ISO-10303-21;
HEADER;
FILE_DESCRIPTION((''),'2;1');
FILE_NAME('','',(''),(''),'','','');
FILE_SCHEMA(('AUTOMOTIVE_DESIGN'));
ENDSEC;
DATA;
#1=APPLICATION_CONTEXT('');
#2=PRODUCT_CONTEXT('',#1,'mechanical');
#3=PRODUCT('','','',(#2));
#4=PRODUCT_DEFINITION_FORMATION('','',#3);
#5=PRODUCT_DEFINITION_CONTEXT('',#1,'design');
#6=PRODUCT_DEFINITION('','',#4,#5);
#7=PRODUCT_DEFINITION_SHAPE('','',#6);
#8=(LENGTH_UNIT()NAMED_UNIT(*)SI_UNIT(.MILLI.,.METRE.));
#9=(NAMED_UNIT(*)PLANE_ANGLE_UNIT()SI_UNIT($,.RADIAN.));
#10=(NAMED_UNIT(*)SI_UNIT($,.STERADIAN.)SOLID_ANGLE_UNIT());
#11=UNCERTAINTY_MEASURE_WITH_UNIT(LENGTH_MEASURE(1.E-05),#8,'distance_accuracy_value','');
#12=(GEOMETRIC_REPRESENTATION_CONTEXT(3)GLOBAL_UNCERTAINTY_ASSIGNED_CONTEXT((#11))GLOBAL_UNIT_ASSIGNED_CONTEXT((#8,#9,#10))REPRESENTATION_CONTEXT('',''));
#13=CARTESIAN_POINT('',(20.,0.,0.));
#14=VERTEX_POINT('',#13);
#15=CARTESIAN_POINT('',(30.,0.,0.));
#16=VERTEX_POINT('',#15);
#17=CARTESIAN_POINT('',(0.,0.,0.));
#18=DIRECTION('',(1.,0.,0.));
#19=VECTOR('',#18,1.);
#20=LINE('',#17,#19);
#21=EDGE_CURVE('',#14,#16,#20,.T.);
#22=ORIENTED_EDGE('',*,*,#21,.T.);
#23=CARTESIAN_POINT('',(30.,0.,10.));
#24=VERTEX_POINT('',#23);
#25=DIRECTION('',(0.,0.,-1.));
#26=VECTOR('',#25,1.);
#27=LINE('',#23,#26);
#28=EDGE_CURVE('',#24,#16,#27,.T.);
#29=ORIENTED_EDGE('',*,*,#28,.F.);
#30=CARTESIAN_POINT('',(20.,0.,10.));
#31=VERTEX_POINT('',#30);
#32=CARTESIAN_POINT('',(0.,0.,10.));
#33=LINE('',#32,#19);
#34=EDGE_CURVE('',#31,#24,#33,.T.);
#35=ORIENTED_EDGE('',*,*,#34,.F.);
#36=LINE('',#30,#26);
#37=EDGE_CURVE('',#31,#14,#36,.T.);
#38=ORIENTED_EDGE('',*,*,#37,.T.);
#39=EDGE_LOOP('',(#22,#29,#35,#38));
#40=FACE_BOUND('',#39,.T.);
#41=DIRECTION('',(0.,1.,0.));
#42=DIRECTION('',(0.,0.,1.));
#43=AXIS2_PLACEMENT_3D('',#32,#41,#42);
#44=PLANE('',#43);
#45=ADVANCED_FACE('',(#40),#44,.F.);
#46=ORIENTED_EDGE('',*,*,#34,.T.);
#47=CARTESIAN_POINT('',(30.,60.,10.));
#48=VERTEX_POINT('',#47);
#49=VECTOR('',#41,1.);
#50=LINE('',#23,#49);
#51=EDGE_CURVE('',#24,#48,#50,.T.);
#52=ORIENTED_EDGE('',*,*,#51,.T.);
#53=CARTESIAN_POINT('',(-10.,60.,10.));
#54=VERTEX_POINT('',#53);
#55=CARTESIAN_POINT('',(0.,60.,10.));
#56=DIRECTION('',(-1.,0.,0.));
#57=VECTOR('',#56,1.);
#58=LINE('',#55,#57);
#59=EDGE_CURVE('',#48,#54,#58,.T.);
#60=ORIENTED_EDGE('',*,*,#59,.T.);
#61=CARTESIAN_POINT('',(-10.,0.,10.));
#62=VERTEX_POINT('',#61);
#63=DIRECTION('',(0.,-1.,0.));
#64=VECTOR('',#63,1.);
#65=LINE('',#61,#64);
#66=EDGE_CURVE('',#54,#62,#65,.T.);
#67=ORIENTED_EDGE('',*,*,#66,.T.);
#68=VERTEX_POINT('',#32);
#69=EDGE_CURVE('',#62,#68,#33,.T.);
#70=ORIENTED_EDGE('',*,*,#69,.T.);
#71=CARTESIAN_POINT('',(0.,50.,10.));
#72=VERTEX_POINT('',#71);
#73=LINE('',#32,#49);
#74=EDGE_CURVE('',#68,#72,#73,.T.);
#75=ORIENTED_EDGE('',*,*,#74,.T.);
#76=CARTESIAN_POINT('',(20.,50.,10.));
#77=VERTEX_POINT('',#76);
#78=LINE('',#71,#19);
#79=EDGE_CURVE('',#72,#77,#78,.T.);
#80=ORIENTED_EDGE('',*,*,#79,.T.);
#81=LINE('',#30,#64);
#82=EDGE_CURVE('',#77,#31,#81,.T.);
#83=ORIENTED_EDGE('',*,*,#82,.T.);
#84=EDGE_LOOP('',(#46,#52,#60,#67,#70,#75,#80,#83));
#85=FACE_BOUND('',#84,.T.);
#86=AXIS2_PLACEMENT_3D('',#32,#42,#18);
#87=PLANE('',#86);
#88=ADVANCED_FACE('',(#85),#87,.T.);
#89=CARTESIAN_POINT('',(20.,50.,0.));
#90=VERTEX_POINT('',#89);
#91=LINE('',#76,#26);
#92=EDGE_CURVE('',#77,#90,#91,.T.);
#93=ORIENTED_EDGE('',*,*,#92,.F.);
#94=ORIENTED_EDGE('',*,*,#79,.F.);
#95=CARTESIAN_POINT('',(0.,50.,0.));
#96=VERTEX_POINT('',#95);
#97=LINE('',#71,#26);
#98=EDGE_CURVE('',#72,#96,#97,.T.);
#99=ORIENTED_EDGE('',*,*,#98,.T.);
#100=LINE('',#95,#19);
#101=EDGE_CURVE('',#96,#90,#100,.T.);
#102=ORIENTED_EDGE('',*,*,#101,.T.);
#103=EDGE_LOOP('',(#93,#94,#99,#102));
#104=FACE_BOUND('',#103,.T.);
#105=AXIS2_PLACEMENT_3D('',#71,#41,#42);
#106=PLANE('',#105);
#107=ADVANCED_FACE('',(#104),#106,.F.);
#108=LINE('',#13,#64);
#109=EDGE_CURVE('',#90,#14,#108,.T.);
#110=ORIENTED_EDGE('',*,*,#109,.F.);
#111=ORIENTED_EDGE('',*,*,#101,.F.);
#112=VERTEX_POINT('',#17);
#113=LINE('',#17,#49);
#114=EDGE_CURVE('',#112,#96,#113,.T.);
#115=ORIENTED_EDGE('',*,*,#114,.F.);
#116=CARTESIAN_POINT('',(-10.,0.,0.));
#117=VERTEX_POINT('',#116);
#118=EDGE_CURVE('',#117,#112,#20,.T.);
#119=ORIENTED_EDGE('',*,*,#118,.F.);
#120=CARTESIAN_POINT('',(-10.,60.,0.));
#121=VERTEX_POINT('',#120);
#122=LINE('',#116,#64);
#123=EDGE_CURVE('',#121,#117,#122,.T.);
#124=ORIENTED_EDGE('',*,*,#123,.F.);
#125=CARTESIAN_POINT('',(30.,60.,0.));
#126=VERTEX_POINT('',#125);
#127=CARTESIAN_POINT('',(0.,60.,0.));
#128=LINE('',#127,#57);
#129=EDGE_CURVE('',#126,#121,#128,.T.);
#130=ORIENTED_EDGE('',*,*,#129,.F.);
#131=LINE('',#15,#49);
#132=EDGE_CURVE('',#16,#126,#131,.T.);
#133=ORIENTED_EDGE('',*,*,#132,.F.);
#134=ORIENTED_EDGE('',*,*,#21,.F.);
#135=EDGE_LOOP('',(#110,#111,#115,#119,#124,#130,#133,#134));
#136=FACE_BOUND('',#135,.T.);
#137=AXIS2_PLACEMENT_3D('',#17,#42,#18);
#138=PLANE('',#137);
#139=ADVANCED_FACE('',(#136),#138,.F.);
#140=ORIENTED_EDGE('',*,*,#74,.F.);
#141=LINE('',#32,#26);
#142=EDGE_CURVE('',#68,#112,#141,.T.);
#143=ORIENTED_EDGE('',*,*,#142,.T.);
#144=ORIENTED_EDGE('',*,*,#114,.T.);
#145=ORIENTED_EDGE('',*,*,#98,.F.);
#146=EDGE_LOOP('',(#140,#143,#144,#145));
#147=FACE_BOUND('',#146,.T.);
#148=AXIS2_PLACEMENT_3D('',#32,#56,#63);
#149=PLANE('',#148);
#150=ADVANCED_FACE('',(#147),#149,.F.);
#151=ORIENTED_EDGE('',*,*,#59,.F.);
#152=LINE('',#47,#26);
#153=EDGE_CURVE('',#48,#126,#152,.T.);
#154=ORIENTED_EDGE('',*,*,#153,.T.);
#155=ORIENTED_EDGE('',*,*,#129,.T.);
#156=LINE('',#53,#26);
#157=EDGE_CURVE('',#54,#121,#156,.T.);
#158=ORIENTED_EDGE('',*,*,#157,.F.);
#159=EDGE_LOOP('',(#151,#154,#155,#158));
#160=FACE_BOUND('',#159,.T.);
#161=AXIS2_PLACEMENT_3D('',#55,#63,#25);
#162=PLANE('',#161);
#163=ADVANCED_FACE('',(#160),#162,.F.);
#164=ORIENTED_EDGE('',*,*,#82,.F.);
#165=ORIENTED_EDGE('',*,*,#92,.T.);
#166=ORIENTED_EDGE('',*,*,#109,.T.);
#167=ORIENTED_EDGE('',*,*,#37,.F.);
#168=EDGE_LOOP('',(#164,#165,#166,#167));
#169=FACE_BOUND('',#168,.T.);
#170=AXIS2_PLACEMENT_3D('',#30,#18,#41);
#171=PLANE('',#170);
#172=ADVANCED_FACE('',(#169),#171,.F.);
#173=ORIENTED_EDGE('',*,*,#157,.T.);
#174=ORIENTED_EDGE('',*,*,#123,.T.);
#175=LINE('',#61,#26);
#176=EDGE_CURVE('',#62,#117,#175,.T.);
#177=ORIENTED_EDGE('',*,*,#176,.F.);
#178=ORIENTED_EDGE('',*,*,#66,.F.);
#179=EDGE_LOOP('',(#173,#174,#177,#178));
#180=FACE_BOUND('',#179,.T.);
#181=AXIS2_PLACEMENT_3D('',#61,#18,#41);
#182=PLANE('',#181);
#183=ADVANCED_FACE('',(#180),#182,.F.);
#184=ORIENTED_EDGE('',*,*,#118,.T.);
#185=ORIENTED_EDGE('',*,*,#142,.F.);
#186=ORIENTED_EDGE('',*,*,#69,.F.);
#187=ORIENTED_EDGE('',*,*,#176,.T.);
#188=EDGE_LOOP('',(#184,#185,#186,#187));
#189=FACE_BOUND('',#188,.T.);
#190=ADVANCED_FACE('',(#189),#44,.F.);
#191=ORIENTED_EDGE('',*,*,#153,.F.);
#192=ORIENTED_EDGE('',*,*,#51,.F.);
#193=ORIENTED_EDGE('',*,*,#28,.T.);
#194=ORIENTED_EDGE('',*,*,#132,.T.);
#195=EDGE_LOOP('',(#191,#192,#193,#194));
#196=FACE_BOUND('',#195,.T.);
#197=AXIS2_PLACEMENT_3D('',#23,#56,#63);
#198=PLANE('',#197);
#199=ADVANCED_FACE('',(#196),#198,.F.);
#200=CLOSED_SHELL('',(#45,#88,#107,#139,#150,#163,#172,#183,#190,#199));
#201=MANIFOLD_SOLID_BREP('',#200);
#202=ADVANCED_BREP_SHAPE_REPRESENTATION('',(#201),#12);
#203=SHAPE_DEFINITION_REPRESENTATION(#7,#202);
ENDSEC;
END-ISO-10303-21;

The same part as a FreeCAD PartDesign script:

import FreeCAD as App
import Part
import Sketcher
from FreeCAD import Vector


def add_polygon(sketch, points):
    """Adds a closed chain of lines whose ends are joined by coincident constraints."""
    first, n = sketch.GeometryCount, len(points)
    for a, b in zip(points, points[1:] + points[:1]):
        sketch.addGeometry(Part.LineSegment(App.Vector(*a, 0), App.Vector(*b, 0)), False)
    for i in range(n):
        sketch.addConstraint(Sketcher.Constraint("Coincident", first + i, 2, first + (i + 1) % n, 1))

doc = App.newDocument("Part")
body = doc.addObject("PartDesign::Body", "Body")

sketch1 = doc.addObject("Sketcher::SketchObject", "Sketch")
body.addObject(sketch1)
sketch1.AttachmentSupport = (doc.XY_Plane, [""])
sketch1.MapMode = "FlatFace"
add_polygon(sketch1, [(-10, 60), (-10, 0), (0, 0), (0, 50), (20, 50), (20, 0), (30, 0), (30, 60)])
sketch1.addConstraint(Sketcher.Constraint("Vertical", 0))
sketch1.addConstraint(Sketcher.Constraint("Horizontal", 1))
sketch1.addConstraint(Sketcher.Constraint("Vertical", 2))
sketch1.addConstraint(Sketcher.Constraint("Horizontal", 3))
sketch1.addConstraint(Sketcher.Constraint("Vertical", 4))
sketch1.addConstraint(Sketcher.Constraint("Horizontal", 5))
sketch1.addConstraint(Sketcher.Constraint("Vertical", 6))
sketch1.addConstraint(Sketcher.Constraint("Horizontal", 7))
sketch1.addConstraint(Sketcher.Constraint("Coincident", 1, 2, -1, 1))
sketch1.addConstraint(Sketcher.Constraint("PointOnObject", 4, 2, -1))
sketch1.addConstraint(Sketcher.Constraint("Equal", 1, 5))
sketch1.addConstraint(Sketcher.Constraint("DistanceX", 1, 1, 1, 2, 10.0))
sketch1.addConstraint(Sketcher.Constraint("DistanceX", 3, 1, 3, 2, 20.0))
sketch1.addConstraint(Sketcher.Constraint("DistanceY", 0, 2, 0, 1, 60.0))
sketch1.addConstraint(Sketcher.Constraint("DistanceY", 2, 1, 2, 2, 50.0))
pad1 = doc.addObject("PartDesign::Pad", "Pad")
body.addObject(pad1)
pad1.Profile = sketch1
pad1.Length = 10

doc.recompute()
